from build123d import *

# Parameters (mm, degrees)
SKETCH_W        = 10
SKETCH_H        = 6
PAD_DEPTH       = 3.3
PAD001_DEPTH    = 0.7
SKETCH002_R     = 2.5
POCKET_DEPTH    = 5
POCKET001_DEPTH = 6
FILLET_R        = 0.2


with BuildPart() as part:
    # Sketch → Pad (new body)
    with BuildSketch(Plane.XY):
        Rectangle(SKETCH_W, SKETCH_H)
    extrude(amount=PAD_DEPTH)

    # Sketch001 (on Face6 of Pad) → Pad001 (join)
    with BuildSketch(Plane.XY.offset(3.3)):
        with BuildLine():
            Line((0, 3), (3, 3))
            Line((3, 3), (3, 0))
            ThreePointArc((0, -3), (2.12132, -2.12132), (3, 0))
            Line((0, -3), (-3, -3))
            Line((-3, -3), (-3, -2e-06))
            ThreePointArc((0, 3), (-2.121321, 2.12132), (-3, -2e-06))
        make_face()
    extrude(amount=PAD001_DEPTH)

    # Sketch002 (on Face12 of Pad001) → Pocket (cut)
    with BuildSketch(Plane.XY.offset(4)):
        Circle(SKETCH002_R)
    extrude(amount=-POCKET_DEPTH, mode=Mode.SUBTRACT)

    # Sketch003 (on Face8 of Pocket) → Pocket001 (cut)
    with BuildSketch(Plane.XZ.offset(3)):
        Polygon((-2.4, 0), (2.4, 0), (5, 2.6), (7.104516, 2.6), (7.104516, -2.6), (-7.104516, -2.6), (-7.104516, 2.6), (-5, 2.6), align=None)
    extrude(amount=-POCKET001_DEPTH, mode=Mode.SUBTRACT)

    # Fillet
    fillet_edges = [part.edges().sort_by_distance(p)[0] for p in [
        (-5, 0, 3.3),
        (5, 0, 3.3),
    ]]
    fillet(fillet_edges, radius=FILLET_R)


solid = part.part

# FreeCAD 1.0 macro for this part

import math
import FreeCAD as App
import Part
import Sketcher
Q = App.Units.Quantity


def edges_at(feature, points):
    """Names of the edges that pass closest to the given points."""
    edges = feature.Shape.Edges
    near = lambda p: min(range(len(edges)), key=lambda i: edges[i].distToShape(Part.Vertex(*p))[0])
    return sorted({f"Edge{near(p) + 1}" for p in points})


def add_polygon(sketch, points):
    """Adds a closed chain of lines whose ends are joined by coincident constraints."""
    first, n = sketch.GeometryCount, len(points)
    for a, b in zip(points, points[1:] + points[:1]):
        sketch.addGeometry(Part.LineSegment(App.Vector(*a, 0), App.Vector(*b, 0)), False)
    for i in range(n):
        sketch.addConstraint(Sketcher.Constraint("Coincident", first + i, 2, first + (i + 1) % n, 1))

doc = App.newDocument("Part")
params = doc.addObject("Spreadsheet::Sheet", "Params")
for row, (alias, value) in enumerate([
    ("sketch1_width", "10 mm"),
    ("sketch1_height", "6 mm"),
    ("pad1_length", "3.3 mm"),
    ("sketch2_radius", "2.999999 mm"),
    ("pad2_length", "0.7 mm"),
    ("sketch3_diameter", "5 mm"),
    ("pocket1_length", "5 mm"),
    ("sketch4_width", "4.8 mm"),
    ("sketch4_height", "5.2 mm"),
    ("pocket2_length", "6 mm"),
    ("fillet_radius", "0.2 mm"),
], start=1):
    params.set(f"A{row}", alias)
    params.set(f"B{row}", "=" + value)
    params.setAlias(f"B{row}", alias)

body = doc.addObject("PartDesign::Body", "Body")

sketch1 = body.newObject("Sketcher::SketchObject", "Sketch")
sketch1.AttachmentSupport = (doc.getObject("XY_Plane"), [""])
sketch1.MapMode = "FlatFace"
add_polygon(sketch1, [(-5, 3), (-5, -3), (5, -3), (5, 3)])
sketch1.addConstraint([
    Sketcher.Constraint("Vertical", 0),
    Sketcher.Constraint("Horizontal", 1),
    Sketcher.Constraint("Vertical", 2),
    Sketcher.Constraint("Horizontal", 3),
    Sketcher.Constraint("Symmetric", 0, 2, 2, 2, -1, 1),
    Sketcher.Constraint("DistanceX", 1, 1, 1, 2, Q("10 mm")),
    Sketcher.Constraint("DistanceY", 0, 2, 0, 1, Q("6 mm")),
])
sketch1.setExpression("Constraints[9]", "Params.sketch1_width")
sketch1.setExpression("Constraints[10]", "Params.sketch1_height")
pad1 = body.newObject("PartDesign::Pad", "Pad")
pad1.Profile = sketch1
pad1.setExpression("Length", "Params.pad1_length")

sketch2 = body.newObject("Sketcher::SketchObject", "Sketch001")
sketch2.AttachmentSupport = (doc.getObject("XY_Plane"), [""])
sketch2.MapMode = "FlatFace"
sketch2.AttachmentOffset = App.Placement(App.Vector(0, 0, 3.3), App.Rotation())
sketch2.addGeometry([
    Part.LineSegment(App.Vector(3, 3, 0), App.Vector(0, 3, 0)),
    Part.ArcOfCircle(Part.Circle(App.Vector(-0.000001, 0.000001, 0), App.Vector(0, 0, 1), 2.999999), math.radians(89.99999), math.radians(180.000048)),
    Part.LineSegment(App.Vector(-3, -0.000002, 0), App.Vector(-3, -3, 0)),
    Part.LineSegment(App.Vector(-3, -3, 0), App.Vector(0, -3, 0)),
    Part.ArcOfCircle(Part.Circle(App.Vector(-0.000001, 0.000001, 0), App.Vector(0, 0, 1), 3.000001), math.radians(-89.999978), math.radians(-0.000022)),
    Part.LineSegment(App.Vector(3, 0, 0), App.Vector(3, 3, 0)),
], False)
sketch2.addConstraint([
    Sketcher.Constraint("Tangent", 0, 2, 1, 1),
    Sketcher.Constraint("Tangent", 1, 2, 2, 1),
    Sketcher.Constraint("Coincident", 2, 2, 3, 1),
    Sketcher.Constraint("Tangent", 3, 2, 4, 1),
    Sketcher.Constraint("Tangent", 4, 2, 5, 1),
    Sketcher.Constraint("Coincident", 5, 2, 0, 1),
    Sketcher.Constraint("Horizontal", 0),
    Sketcher.Constraint("Vertical", 2),
    Sketcher.Constraint("Horizontal", 3),
    Sketcher.Constraint("Vertical", 5),
    Sketcher.Constraint("Coincident", 1, 3, -1, 1),
    Sketcher.Constraint("Coincident", 4, 3, -1, 1),
    Sketcher.Constraint("Equal", 1, 4),
    Sketcher.Constraint("Radius", 1, Q("2.999999 mm")),
])
sketch2.setExpression("Constraints[13]", "Params.sketch2_radius")
pad2 = body.newObject("PartDesign::Pad", "Pad001")
pad2.Profile = sketch2
pad2.setExpression("Length", "Params.pad2_length")

sketch3 = body.newObject("Sketcher::SketchObject", "Sketch002")
sketch3.AttachmentSupport = (doc.getObject("XY_Plane"), [""])
sketch3.MapMode = "FlatFace"
sketch3.AttachmentOffset = App.Placement(App.Vector(0, 0, 4), App.Rotation())
sketch3.addGeometry(Part.Circle(App.Vector(0, 0, 0), App.Vector(0, 0, 1), 2.5), False)
sketch3.addConstraint([
    Sketcher.Constraint("Coincident", 0, 3, -1, 1),
    Sketcher.Constraint("Diameter", 0, Q("5 mm")),
])
sketch3.setExpression("Constraints[1]", "Params.sketch3_diameter")
pocket1 = body.newObject("PartDesign::Pocket", "Pocket")
pocket1.Profile = sketch3
pocket1.setExpression("Length", "Params.pocket1_length")

sketch4 = body.newObject("Sketcher::SketchObject", "Sketch003")
sketch4.AttachmentSupport = (doc.getObject("XZ_Plane"), [""])
sketch4.MapMode = "FlatFace"
sketch4.AttachmentOffset = App.Placement(App.Vector(0, 0, 3), App.Rotation())
add_polygon(sketch4, [(2.4, 0), (-2.4, 0), (-5, 2.6), (-7.104516, 2.6), (-7.104516, -2.6), (7.104516, -2.6), (7.104516, 2.6), (5, 2.6)])
sketch4.addConstraint([
    Sketcher.Constraint("Horizontal", 0),
    Sketcher.Constraint("Horizontal", 2),
    Sketcher.Constraint("Vertical", 3),
    Sketcher.Constraint("Horizontal", 4),
    Sketcher.Constraint("Vertical", 5),
    Sketcher.Constraint("Horizontal", 6),
    Sketcher.Constraint("Symmetric", 2, 2, 4, 2, -1, 1),
    Sketcher.Constraint("Symmetric", 0, 2, 7, 2, -1, 1),
    Sketcher.Constraint("Symmetric", 1, 2, 6, 2, -2),
    Sketcher.Constraint("Perpendicular", 1, 7),
    Sketcher.Constraint("DistanceX", 0, 2, 0, 1, Q("4.8 mm")),
    Sketcher.Constraint("DistanceY", 3, 2, 3, 1, Q("5.2 mm")),
    Sketcher.Constraint("DistanceX", 2, 2, 2, 1, Q("2.104516 mm")),
])
sketch4.setExpression("Constraints[18]", "Params.sketch4_width")
sketch4.setExpression("Constraints[19]", "Params.sketch4_height")
pocket2 = body.newObject("PartDesign::Pocket", "Pocket001")
pocket2.Profile = sketch4
pocket2.setExpression("Length", "Params.pocket2_length")
doc.recompute()

fillet = body.newObject("PartDesign::Fillet", "Fillet")
fillet.Base = (pocket2, edges_at(pocket2, [(-5, 0, 3.3), (5, 0, 3.3)]))
fillet.setExpression("Radius", "Params.fillet_radius")

doc.recompute()
